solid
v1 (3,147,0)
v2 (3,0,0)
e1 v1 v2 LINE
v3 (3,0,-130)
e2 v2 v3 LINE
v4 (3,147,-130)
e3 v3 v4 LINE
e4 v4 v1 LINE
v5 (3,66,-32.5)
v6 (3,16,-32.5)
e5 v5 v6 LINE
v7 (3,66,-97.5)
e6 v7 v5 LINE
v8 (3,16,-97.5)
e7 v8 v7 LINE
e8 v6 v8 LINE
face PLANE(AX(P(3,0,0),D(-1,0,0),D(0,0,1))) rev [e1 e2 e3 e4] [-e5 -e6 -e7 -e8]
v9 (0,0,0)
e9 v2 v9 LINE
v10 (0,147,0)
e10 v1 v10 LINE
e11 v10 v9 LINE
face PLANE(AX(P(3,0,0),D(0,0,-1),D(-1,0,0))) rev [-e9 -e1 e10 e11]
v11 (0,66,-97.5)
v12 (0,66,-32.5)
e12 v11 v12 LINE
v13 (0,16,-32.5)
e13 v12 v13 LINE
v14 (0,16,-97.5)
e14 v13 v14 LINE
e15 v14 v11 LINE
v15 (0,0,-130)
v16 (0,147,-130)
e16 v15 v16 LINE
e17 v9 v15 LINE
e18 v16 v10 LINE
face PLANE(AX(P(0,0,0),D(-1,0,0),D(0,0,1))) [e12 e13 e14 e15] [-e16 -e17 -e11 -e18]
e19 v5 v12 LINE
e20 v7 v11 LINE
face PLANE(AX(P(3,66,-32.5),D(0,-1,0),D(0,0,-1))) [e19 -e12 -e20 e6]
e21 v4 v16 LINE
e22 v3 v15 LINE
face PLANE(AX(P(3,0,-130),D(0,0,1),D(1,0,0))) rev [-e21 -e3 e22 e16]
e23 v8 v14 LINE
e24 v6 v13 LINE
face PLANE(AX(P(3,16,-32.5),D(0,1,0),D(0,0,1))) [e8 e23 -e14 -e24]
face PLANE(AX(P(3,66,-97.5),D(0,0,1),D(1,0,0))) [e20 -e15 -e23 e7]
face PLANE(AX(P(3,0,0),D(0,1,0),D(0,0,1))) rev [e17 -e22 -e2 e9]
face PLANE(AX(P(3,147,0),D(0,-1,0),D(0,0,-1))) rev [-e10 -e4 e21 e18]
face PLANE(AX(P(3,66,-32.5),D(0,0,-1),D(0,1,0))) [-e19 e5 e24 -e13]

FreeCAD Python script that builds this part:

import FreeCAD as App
import Part
import Sketcher

V = App.Vector
Q = App.Units.Quantity


def add_polygon(sketch, points):
    """Adds a closed chain of lines whose ends are joined by coincident constraints."""
    first, n = sketch.GeometryCount, len(points)
    for a, b in zip(points, points[1:] + points[:1]):
        sketch.addGeometry(Part.LineSegment(App.Vector(*a, 0), App.Vector(*b, 0)), False)
    for i in range(n):
        sketch.addConstraint(Sketcher.Constraint("Coincident", first + i, 2, first + (i + 1) % n, 1))

doc = App.newDocument("Part")
params = doc.addObject("Spreadsheet::Sheet", "Params")
for row, (alias, value) in enumerate([
    ("sketch1_width", "147 mm"),
    ("sketch1_width2", "50 mm"),
    ("sketch1_height", "130 mm"),
    ("sketch1_height2", "65 mm"),
    ("pad1_length", "3 mm"),
], start=1):
    params.set(f"A{row}", alias)
    params.set(f"B{row}", "=" + value)
    params.setAlias(f"B{row}", alias)

body = doc.addObject("PartDesign::Body", "Body")

sketch1 = body.newObject("Sketcher::SketchObject", "Sketch")
sketch1.AttachmentSupport = (doc.getObject("YZ_Plane"), [""])
sketch1.MapMode = "FlatFace"
add_polygon(sketch1, [(147, 0), (0, 0), (0, -130), (147, -130)])
add_polygon(sketch1, [(16, -97.5), (16, -32.5), (66, -32.5), (66, -97.5)])
sketch1.addConstraint([
    Sketcher.Constraint("Horizontal", 0),
    Sketcher.Constraint("Vertical", 1),
    Sketcher.Constraint("Horizontal", 2),
    Sketcher.Constraint("Vertical", 3),
    Sketcher.Constraint("Vertical", 4),
    Sketcher.Constraint("Horizontal", 5),
    Sketcher.Constraint("Vertical", 6),
    Sketcher.Constraint("Horizontal", 7),
    Sketcher.Constraint("Coincident", 0, 2, -1, 1),
    Sketcher.Constraint("DistanceX", 0, 2, 0, 1, Q("147 mm")),
    Sketcher.Constraint("DistanceX", 5, 1, 5, 2, Q("50 mm")),
    Sketcher.Constraint("DistanceY", 1, 2, 1, 1, Q("130 mm")),
    Sketcher.Constraint("DistanceY", 4, 1, 4, 2, Q("65 mm")),
    Sketcher.Constraint("DistanceX", -1, 1, 4, 2, Q("16 mm")),
    Sketcher.Constraint("DistanceY", 4, 2, -1, 1, Q("32.5 mm")),
])
sketch1.setExpression("Constraints[17]", "Params.sketch1_width")
sketch1.setExpression("Constraints[18]", "Params.sketch1_width2")
sketch1.setExpression("Constraints[19]", "Params.sketch1_height")
sketch1.setExpression("Constraints[20]", "Params.sketch1_height2")
pad1 = body.newObject("PartDesign::Pad", "Pad")
pad1.Profile = sketch1
pad1.setExpression("Length", "Params.pad1_length")

doc.recompute()
